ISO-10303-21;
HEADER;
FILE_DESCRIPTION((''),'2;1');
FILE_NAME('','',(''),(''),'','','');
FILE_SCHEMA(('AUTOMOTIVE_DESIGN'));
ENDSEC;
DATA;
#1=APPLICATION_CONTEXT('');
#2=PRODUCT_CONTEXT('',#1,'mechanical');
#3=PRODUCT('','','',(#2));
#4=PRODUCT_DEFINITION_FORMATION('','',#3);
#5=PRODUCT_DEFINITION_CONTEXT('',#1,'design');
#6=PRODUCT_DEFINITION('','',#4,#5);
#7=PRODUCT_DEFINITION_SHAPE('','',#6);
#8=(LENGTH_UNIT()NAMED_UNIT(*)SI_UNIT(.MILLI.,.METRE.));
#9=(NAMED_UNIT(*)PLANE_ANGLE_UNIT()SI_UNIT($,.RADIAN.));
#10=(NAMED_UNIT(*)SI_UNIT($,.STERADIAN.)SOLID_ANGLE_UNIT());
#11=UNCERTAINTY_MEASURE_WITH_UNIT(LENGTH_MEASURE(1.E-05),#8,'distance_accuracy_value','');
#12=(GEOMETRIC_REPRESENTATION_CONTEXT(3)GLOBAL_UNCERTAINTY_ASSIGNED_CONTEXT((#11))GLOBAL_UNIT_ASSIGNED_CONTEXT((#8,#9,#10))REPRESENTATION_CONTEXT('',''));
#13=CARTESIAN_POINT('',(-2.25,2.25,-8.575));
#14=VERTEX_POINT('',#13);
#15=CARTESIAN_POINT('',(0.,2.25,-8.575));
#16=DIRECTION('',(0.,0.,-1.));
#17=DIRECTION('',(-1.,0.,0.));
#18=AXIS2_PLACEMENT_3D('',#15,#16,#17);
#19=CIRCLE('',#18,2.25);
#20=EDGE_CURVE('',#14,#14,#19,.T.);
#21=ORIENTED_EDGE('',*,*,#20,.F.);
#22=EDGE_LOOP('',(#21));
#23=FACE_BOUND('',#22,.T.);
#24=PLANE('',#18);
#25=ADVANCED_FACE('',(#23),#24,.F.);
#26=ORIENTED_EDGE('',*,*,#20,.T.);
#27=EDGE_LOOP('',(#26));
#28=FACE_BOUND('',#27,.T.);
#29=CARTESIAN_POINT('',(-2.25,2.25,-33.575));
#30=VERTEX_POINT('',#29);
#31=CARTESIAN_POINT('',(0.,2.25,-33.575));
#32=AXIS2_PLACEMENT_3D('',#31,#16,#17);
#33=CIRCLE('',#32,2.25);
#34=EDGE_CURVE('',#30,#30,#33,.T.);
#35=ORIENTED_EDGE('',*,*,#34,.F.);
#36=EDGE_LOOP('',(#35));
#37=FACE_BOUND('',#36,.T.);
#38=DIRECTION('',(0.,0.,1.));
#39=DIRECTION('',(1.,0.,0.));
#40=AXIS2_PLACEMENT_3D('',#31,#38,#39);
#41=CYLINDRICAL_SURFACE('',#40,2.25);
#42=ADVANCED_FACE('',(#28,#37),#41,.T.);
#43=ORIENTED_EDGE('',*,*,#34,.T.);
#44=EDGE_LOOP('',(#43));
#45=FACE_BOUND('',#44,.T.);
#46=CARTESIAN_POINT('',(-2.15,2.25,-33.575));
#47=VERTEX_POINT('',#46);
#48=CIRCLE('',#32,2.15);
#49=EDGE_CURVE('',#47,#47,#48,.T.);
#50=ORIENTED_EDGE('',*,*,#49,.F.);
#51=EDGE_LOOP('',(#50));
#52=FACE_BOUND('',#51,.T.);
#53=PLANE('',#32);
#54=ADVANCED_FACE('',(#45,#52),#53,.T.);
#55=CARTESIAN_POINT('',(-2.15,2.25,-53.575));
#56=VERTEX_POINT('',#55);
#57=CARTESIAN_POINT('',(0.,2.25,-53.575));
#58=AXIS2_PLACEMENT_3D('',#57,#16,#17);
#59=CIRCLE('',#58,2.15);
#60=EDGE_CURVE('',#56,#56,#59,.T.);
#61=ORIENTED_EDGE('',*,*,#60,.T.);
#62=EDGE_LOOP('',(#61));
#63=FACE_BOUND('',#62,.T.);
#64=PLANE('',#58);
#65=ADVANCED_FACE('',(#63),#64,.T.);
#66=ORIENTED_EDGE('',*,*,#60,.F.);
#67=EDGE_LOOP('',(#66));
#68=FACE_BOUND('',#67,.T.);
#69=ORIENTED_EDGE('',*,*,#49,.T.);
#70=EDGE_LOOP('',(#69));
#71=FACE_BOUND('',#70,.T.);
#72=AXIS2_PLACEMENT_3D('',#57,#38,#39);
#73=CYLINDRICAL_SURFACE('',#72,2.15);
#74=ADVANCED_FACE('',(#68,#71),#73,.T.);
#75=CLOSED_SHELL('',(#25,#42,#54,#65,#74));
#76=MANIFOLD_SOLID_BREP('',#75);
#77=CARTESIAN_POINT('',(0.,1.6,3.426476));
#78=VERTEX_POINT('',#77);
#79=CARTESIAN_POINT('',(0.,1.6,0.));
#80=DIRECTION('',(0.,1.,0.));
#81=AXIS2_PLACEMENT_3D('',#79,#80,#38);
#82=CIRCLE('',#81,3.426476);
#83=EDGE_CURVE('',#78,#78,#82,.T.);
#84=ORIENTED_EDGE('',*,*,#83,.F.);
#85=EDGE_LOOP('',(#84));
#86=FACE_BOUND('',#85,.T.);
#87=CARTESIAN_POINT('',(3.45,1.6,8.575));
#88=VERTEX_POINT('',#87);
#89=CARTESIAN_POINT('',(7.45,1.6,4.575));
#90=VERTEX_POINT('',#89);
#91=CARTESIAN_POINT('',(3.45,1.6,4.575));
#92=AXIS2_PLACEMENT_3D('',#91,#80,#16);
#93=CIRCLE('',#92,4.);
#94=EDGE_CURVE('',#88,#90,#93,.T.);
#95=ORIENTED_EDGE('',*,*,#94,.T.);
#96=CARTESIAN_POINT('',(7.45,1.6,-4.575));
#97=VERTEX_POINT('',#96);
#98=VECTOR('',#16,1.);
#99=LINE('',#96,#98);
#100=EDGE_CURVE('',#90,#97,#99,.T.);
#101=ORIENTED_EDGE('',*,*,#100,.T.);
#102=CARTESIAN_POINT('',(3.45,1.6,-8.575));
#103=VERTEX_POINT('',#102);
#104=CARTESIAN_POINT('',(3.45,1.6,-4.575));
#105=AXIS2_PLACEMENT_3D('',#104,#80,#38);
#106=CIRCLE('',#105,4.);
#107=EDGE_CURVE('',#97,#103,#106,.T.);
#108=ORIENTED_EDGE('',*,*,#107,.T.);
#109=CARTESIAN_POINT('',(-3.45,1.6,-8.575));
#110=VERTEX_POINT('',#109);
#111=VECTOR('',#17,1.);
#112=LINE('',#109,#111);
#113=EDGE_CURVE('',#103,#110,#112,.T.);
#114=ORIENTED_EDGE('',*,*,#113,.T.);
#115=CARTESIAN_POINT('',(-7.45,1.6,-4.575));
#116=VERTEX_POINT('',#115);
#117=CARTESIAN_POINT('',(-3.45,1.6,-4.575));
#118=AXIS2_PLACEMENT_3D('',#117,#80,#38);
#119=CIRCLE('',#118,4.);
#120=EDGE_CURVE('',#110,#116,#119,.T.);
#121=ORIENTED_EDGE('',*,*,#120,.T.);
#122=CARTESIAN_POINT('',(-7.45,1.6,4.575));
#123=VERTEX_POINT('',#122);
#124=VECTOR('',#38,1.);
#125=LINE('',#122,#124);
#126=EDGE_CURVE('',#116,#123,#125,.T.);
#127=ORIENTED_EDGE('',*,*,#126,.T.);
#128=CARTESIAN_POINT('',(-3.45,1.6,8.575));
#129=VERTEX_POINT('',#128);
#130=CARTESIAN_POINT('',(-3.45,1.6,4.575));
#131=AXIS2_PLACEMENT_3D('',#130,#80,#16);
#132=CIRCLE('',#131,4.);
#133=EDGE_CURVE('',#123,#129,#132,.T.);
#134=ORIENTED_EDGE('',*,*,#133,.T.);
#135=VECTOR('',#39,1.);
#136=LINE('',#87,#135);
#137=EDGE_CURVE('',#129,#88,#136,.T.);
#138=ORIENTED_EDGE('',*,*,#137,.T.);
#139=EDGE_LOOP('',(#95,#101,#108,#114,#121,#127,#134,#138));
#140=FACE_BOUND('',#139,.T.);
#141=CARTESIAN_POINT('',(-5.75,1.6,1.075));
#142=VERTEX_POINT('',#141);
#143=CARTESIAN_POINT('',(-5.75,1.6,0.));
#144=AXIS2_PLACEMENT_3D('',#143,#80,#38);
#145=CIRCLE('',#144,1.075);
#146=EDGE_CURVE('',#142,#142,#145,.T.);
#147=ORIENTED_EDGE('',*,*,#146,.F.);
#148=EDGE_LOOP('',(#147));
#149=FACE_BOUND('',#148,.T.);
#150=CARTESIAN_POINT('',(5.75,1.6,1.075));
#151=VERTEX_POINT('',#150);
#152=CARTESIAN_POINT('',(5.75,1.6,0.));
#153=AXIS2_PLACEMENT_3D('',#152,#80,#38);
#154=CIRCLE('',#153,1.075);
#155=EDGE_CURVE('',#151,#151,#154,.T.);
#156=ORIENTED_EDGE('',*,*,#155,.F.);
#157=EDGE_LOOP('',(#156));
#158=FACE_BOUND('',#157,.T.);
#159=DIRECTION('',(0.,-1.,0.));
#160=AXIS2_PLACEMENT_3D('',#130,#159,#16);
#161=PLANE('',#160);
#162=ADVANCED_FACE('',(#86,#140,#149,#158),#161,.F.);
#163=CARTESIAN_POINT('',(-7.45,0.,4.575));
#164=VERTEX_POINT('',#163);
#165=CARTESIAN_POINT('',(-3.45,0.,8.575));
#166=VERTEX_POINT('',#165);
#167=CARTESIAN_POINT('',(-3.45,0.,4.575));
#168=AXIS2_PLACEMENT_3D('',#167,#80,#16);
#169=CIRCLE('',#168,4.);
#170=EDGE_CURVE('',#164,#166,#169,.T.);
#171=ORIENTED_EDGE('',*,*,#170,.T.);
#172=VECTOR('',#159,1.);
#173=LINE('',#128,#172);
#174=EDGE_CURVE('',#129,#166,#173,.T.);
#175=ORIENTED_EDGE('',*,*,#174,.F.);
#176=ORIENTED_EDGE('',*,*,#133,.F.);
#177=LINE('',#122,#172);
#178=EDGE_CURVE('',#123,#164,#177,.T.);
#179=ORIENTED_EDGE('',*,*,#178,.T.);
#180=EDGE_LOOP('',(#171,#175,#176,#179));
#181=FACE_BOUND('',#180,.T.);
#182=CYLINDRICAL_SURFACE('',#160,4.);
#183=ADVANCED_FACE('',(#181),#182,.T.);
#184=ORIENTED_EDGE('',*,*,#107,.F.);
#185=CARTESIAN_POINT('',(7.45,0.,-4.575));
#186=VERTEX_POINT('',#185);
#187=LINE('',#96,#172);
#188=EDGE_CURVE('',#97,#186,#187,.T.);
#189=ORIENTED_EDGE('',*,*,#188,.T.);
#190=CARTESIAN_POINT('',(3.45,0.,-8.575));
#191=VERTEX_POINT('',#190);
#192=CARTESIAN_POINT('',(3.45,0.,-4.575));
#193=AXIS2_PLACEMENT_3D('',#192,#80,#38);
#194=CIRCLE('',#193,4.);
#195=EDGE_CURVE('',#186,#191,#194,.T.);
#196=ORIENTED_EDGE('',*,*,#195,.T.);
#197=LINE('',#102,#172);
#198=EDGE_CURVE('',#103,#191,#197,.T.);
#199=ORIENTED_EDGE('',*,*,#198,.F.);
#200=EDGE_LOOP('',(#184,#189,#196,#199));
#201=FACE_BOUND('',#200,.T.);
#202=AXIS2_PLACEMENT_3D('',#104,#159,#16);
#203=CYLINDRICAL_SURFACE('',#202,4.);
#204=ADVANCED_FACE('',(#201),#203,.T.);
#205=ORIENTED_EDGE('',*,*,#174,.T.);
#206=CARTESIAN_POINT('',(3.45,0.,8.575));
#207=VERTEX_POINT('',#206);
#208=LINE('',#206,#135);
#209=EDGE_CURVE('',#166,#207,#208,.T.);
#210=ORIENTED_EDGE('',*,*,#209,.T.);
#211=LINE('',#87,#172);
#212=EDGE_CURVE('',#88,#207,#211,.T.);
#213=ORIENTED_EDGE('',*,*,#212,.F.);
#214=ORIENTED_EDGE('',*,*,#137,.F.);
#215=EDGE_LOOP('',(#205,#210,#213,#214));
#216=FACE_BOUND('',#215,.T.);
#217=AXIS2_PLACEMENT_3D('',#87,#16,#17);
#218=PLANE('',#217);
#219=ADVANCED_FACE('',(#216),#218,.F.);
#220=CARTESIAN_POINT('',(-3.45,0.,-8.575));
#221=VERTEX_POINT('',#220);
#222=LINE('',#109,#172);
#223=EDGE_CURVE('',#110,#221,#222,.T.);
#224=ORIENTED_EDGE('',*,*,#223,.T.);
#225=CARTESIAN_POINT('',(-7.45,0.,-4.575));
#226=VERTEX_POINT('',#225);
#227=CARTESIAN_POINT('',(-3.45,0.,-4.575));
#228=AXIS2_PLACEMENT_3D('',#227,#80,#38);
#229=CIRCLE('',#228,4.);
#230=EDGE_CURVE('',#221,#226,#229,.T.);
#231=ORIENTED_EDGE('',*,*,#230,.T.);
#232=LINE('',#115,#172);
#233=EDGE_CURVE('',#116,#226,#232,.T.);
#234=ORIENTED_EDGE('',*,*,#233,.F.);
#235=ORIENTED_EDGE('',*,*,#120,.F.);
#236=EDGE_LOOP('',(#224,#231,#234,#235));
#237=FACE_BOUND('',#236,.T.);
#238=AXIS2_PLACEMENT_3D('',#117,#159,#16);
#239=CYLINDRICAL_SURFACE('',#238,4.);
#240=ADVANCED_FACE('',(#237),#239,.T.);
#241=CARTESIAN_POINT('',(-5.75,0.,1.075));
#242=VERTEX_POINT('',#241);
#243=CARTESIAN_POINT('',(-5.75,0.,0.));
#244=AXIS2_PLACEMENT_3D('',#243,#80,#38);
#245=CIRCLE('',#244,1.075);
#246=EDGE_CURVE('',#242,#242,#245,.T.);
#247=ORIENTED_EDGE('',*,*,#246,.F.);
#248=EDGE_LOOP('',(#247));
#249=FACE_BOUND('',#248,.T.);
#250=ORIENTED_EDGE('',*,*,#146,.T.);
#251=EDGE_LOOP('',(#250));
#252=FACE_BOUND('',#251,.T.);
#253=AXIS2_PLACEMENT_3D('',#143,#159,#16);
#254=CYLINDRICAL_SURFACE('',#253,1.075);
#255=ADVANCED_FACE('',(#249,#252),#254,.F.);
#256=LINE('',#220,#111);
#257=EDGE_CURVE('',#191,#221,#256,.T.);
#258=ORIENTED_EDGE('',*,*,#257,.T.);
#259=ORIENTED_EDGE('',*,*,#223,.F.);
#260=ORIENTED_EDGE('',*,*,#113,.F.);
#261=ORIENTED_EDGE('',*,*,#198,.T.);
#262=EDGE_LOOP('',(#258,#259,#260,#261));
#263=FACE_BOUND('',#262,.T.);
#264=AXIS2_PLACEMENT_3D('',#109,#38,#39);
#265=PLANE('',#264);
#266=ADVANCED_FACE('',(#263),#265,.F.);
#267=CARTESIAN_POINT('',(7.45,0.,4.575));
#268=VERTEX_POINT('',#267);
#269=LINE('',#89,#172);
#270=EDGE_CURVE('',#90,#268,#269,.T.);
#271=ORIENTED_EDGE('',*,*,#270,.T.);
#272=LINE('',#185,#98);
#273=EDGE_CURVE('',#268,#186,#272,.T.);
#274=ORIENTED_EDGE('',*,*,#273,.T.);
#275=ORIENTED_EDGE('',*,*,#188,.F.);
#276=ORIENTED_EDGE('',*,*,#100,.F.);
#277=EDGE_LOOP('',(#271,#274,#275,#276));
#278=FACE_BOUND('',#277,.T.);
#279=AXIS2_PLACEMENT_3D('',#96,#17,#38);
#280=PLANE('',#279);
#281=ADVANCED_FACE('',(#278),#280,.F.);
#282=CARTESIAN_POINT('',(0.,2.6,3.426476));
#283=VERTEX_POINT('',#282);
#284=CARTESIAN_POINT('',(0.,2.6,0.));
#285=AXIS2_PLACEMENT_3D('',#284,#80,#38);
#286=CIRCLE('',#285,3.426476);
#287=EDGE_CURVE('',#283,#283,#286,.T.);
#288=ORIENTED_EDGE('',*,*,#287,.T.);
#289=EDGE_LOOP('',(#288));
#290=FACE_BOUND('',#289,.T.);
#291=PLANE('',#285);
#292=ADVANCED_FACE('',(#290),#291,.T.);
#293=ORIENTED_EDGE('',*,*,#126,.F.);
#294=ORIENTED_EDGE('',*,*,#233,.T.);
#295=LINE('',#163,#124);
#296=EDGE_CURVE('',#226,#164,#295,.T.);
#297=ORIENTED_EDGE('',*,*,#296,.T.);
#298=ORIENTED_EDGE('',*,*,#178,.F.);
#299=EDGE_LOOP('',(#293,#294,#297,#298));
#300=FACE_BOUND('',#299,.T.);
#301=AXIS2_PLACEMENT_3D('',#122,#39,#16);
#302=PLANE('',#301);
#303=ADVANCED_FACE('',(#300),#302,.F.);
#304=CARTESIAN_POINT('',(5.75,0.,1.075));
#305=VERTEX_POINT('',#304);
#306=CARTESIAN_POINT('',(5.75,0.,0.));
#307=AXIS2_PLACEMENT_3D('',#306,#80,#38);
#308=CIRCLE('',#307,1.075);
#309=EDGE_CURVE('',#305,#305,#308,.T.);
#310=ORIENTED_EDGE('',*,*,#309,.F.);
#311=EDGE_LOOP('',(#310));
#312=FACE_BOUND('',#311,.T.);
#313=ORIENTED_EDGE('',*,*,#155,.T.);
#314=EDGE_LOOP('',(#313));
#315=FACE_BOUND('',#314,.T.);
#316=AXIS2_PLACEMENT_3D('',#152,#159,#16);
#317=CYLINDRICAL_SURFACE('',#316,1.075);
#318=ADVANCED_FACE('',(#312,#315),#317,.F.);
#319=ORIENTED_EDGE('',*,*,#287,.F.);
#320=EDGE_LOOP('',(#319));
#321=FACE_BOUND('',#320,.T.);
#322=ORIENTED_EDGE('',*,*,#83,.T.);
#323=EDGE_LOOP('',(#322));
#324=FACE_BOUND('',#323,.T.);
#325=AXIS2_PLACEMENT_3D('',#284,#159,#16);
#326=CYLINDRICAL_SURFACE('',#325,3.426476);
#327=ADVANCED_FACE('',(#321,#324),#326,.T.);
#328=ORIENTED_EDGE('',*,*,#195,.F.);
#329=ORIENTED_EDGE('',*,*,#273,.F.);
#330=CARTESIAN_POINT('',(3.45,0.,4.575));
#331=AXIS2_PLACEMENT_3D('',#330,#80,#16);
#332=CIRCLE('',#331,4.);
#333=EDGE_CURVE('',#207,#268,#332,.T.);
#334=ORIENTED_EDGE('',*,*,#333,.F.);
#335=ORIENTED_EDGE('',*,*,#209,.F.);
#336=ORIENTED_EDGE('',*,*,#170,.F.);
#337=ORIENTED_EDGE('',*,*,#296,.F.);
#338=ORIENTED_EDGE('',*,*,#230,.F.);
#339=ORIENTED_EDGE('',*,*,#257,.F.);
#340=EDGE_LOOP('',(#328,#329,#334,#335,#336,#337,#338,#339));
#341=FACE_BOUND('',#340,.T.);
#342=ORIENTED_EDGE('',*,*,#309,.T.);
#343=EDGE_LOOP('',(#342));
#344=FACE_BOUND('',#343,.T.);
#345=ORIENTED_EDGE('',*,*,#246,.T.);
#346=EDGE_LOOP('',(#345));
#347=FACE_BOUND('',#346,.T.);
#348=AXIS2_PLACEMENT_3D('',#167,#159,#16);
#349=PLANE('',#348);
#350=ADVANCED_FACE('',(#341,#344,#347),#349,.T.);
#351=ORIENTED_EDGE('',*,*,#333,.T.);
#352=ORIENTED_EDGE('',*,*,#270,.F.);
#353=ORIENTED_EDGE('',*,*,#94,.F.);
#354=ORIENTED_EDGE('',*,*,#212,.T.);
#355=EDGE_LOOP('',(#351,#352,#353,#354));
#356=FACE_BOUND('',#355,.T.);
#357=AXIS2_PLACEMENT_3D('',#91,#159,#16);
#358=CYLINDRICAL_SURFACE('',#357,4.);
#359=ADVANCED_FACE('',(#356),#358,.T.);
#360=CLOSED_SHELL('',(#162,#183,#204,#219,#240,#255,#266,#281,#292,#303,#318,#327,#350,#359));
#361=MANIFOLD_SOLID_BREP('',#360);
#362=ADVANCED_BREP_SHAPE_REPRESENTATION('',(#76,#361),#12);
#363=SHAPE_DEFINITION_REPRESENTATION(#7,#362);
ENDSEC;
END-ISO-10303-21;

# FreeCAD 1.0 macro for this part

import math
import FreeCAD as App
import Part
import Sketcher

V = App.Vector
Q = App.Units.Quantity

doc = App.newDocument("Part")
params = doc.addObject("Spreadsheet::Sheet", "Params")
for row, (alias, value) in enumerate([
    ("sketch1_radius", "4 mm"),
    ("sketch1_diameter", "2.15 mm"),
    ("sketch1_width", "6.9 mm"),
    ("sketch1_height", "9.15 mm"),
    ("pad1_length", "1.6 mm"),
    ("pad2_length", "1 mm"),
    ("sketch3_diameter", "4.5 mm"),
    ("pad3_length", "25 mm"),
    ("sketch4_diameter", "4.3 mm"),
    ("pad4_length", "20 mm"),
], start=1):
    params.set(f"A{row}", alias)
    params.set(f"B{row}", "=" + value)
    params.setAlias(f"B{row}", alias)

body = doc.addObject("PartDesign::Body", "Body")

# Sketch on XZ plane
sketch1 = body.newObject("Sketcher::SketchObject", "Sketch")
sketch1.AttachmentSupport = (doc.getObject("XZ_Plane"), [""])
sketch1.MapMode = "FlatFace"
sketch1.addGeometry(Part.LineSegment(V(3.5, -8.6, 0), V(-3.5, -8.6, 0)), False)
sketch1.addGeometry(Part.ArcOfCircle(Part.Circle(V(-3.5, -4.6, 0), V(0, 0, 1), 4), math.radians(180), math.radians(270)), False)
sketch1.addGeometry(Part.LineSegment(V(-7.5, -4.6, 0), V(-7.5, 4.6, 0)), False)
sketch1.addGeometry(Part.ArcOfCircle(Part.Circle(V(-3.5, 4.6, 0), V(0, 0, 1), 4), math.radians(90), math.radians(180)), False)
sketch1.addGeometry(Part.LineSegment(V(-3.5, 8.6, 0), V(3.5, 8.6, 0)), False)
sketch1.addGeometry(Part.ArcOfCircle(Part.Circle(V(3.5, 4.6, 0), V(0, 0, 1), 4), math.radians(0), math.radians(90)), False)
sketch1.addGeometry(Part.LineSegment(V(7.5, 4.6, 0), V(7.5, -4.6, 0)), False)
sketch1.addGeometry(Part.ArcOfCircle(Part.Circle(V(3.5, -4.6, 0), V(0, 0, 1), 4), math.radians(-90), math.radians(0)), False)
sketch1.addGeometry(Part.Circle(V(5.8, 0, 0), V(0, 0, 1), 1.1), False)
sketch1.addGeometry(Part.Circle(V(-5.8, 0, 0), V(0, 0, 1), 1.1), False)
sketch1.addConstraint(Sketcher.Constraint("Tangent", 0, 2, 1, 2))
sketch1.addConstraint(Sketcher.Constraint("Tangent", 1, 1, 2, 1))
sketch1.addConstraint(Sketcher.Constraint("Tangent", 2, 2, 3, 2))
sketch1.addConstraint(Sketcher.Constraint("Tangent", 3, 1, 4, 1))
sketch1.addConstraint(Sketcher.Constraint("Tangent", 4, 2, 5, 2))
sketch1.addConstraint(Sketcher.Constraint("Tangent", 5, 1, 6, 1))
sketch1.addConstraint(Sketcher.Constraint("Tangent", 6, 2, 7, 2))
sketch1.addConstraint(Sketcher.Constraint("Tangent", 7, 1, 0, 1))
sketch1.addConstraint(Sketcher.Constraint("Horizontal", 0))
sketch1.addConstraint(Sketcher.Constraint("Vertical", 2))
sketch1.addConstraint(Sketcher.Constraint("Horizontal", 4))
sketch1.addConstraint(Sketcher.Constraint("Vertical", 6))
sketch1.addConstraint(Sketcher.Constraint("Equal", 1, 3))
sketch1.addConstraint(Sketcher.Constraint("Equal", 3, 5))
sketch1.addConstraint(Sketcher.Constraint("Equal", 5, 7))
sketch1.addConstraint(Sketcher.Constraint("Equal", 8, 9))
sketch1.addConstraint(Sketcher.Constraint("Symmetric", 1, 3, 5, 3, -1, 1))
sketch1.addConstraint(Sketcher.Constraint("Symmetric", 8, 3, 9, 3, -1, 1))
sketch1.addConstraint(Sketcher.Constraint("PointOnObject", 8, 3, -1))
sketch1.addConstraint(Sketcher.Constraint("Radius", 1, Q("4 mm")))
sketch1.addConstraint(Sketcher.Constraint("Diameter", 8, Q("2.15 mm")))
sketch1.addConstraint(Sketcher.Constraint("DistanceX", 0, 2, 0, 1, Q("6.9 mm")))
sketch1.addConstraint(Sketcher.Constraint("DistanceY", 2, 1, 2, 2, Q("9.15 mm")))
sketch1.addConstraint(Sketcher.Constraint("DistanceX", 5, 3, 8, 3, Q("2.3 mm")))
sketch1.setExpression("Constraints[19]", "Params.sketch1_radius")
sketch1.setExpression("Constraints[20]", "Params.sketch1_diameter")
sketch1.setExpression("Constraints[21]", "Params.sketch1_width")
sketch1.setExpression("Constraints[22]", "Params.sketch1_height")
pad1 = body.newObject("PartDesign::Pad", "Pad")
pad1.Profile = sketch1
pad1.setExpression("Length", "Params.pad1_length")
pad1.Reversed = True

# Sketch on XZ plane
sketch2 = body.newObject("Sketcher::SketchObject", "Sketch001")
sketch2.AttachmentSupport = (doc.getObject("XZ_Plane"), [""])
sketch2.MapMode = "FlatFace"
sketch2.AttachmentOffset = App.Placement(V(0, 0, -1.6), App.Rotation())
sketch2.addGeometry(Part.Circle(V(0, 0, 0), V(0, 0, 1), 3.4), False)
sketch2.addConstraint(Sketcher.Constraint("Coincident", 0, 3, -1, 1))
sketch2.addConstraint(Sketcher.Constraint("Diameter", 0, Q("6.852952 mm")))
pad2 = body.newObject("PartDesign::Pad", "Pad001")
pad2.Profile = sketch2
pad2.setExpression("Length", "Params.pad2_length")
pad2.Reversed = True
body2 = doc.addObject("PartDesign::Body", "Body001")

# Sketch on XY plane
sketch3 = body2.newObject("Sketcher::SketchObject", "Sketch002")
sketch3.AttachmentSupport = (doc.getObject("XY_Plane001"), [""])
sketch3.MapMode = "FlatFace"
sketch3.AttachmentOffset = App.Placement(V(0, 0, -8.575), App.Rotation())
sketch3.addGeometry(Part.Circle(V(0, 2.2, 0), V(0, 0, 1), 2.2), False)
sketch3.addConstraint(Sketcher.Constraint("PointOnObject", 0, 3, -2))
sketch3.addConstraint(Sketcher.Constraint("Diameter", 0, Q("4.5 mm")))
sketch3.addConstraint(Sketcher.Constraint("DistanceY", -1, 1, 0, 3, Q("2.25 mm")))
sketch3.setExpression("Constraints[1]", "Params.sketch3_diameter")
pad3 = body2.newObject("PartDesign::Pad", "Pad002")
pad3.Profile = sketch3
pad3.setExpression("Length", "Params.pad3_length")
pad3.Reversed = True

# Sketch on XY plane
sketch4 = body2.newObject("Sketcher::SketchObject", "Sketch003")
sketch4.AttachmentSupport = (doc.getObject("XY_Plane001"), [""])
sketch4.MapMode = "FlatFace"
sketch4.AttachmentOffset = App.Placement(V(0, 0, -33.575), App.Rotation())
sketch4.addGeometry(Part.Circle(V(0, 2.2, 0), V(0, 0, 1), 2.1), False)
sketch4.addConstraint(Sketcher.Constraint("PointOnObject", 0, 3, -2))
sketch4.addConstraint(Sketcher.Constraint("Diameter", 0, Q("4.3 mm")))
sketch4.addConstraint(Sketcher.Constraint("DistanceY", -1, 1, 0, 3, Q("2.25 mm")))
sketch4.setExpression("Constraints[1]", "Params.sketch4_diameter")
pad4 = body2.newObject("PartDesign::Pad", "Pad003")
pad4.Profile = sketch4
pad4.setExpression("Length", "Params.pad4_length")
pad4.Reversed = True

doc.recompute()
